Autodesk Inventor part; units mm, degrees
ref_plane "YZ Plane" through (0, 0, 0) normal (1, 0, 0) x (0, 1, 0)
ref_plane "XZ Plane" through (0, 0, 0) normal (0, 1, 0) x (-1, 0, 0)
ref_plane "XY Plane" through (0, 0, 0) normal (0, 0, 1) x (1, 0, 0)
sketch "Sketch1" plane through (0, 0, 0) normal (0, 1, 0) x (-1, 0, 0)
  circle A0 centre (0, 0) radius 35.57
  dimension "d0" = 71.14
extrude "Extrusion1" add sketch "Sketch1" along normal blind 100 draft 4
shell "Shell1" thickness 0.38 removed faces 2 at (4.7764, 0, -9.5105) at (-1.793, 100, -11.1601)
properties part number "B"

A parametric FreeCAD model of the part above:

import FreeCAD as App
import Part
import Sketcher
from FreeCAD import Vector
Q = App.Units.Quantity


def faces_at(feature, points):
    """Names of the faces that lie closest to the given points."""
    faces = feature.Shape.Faces
    near = lambda p: min(range(len(faces)), key=lambda i: faces[i].distToShape(Part.Vertex(*p))[0])
    return sorted({f"Face{near(p) + 1}" for p in points})

doc = App.newDocument("Part")
body = doc.addObject("PartDesign::Body", "Body")

# Sketch on XZ plane
sketch1 = doc.addObject("Sketcher::SketchObject", "Sketch")
body.addObject(sketch1)
sketch1.AttachmentSupport = (doc.XZ_Plane, [""])
sketch1.MapMode = "FlatFace"
sketch1.addGeometry(Part.Circle(Vector(0, 0, 0), Vector(0, 0, 1), 36), False)
sketch1.addConstraint([
    Sketcher.Constraint("Coincident", 0, 3, -1, 1),
    Sketcher.Constraint("Diameter", 0, 71.14),
])
pad1 = doc.addObject("PartDesign::Pad", "Pad")
body.addObject(pad1)
pad1.Profile = sketch1
pad1.Length = Q("3.9370079 in")
pad1.Reversed = True
pad1.TaperAngle = 4
doc.recompute()

thickness = doc.addObject("PartDesign::Thickness", "Thickness")
body.addObject(thickness)
thickness.Base = (pad1, faces_at(pad1, [(4.776, 0, -9.511), (-1.793, 100, -11.16)]))
thickness.Value = 0.38
thickness.Reversed = True
thickness.Join = "Intersection"

doc.recompute()
